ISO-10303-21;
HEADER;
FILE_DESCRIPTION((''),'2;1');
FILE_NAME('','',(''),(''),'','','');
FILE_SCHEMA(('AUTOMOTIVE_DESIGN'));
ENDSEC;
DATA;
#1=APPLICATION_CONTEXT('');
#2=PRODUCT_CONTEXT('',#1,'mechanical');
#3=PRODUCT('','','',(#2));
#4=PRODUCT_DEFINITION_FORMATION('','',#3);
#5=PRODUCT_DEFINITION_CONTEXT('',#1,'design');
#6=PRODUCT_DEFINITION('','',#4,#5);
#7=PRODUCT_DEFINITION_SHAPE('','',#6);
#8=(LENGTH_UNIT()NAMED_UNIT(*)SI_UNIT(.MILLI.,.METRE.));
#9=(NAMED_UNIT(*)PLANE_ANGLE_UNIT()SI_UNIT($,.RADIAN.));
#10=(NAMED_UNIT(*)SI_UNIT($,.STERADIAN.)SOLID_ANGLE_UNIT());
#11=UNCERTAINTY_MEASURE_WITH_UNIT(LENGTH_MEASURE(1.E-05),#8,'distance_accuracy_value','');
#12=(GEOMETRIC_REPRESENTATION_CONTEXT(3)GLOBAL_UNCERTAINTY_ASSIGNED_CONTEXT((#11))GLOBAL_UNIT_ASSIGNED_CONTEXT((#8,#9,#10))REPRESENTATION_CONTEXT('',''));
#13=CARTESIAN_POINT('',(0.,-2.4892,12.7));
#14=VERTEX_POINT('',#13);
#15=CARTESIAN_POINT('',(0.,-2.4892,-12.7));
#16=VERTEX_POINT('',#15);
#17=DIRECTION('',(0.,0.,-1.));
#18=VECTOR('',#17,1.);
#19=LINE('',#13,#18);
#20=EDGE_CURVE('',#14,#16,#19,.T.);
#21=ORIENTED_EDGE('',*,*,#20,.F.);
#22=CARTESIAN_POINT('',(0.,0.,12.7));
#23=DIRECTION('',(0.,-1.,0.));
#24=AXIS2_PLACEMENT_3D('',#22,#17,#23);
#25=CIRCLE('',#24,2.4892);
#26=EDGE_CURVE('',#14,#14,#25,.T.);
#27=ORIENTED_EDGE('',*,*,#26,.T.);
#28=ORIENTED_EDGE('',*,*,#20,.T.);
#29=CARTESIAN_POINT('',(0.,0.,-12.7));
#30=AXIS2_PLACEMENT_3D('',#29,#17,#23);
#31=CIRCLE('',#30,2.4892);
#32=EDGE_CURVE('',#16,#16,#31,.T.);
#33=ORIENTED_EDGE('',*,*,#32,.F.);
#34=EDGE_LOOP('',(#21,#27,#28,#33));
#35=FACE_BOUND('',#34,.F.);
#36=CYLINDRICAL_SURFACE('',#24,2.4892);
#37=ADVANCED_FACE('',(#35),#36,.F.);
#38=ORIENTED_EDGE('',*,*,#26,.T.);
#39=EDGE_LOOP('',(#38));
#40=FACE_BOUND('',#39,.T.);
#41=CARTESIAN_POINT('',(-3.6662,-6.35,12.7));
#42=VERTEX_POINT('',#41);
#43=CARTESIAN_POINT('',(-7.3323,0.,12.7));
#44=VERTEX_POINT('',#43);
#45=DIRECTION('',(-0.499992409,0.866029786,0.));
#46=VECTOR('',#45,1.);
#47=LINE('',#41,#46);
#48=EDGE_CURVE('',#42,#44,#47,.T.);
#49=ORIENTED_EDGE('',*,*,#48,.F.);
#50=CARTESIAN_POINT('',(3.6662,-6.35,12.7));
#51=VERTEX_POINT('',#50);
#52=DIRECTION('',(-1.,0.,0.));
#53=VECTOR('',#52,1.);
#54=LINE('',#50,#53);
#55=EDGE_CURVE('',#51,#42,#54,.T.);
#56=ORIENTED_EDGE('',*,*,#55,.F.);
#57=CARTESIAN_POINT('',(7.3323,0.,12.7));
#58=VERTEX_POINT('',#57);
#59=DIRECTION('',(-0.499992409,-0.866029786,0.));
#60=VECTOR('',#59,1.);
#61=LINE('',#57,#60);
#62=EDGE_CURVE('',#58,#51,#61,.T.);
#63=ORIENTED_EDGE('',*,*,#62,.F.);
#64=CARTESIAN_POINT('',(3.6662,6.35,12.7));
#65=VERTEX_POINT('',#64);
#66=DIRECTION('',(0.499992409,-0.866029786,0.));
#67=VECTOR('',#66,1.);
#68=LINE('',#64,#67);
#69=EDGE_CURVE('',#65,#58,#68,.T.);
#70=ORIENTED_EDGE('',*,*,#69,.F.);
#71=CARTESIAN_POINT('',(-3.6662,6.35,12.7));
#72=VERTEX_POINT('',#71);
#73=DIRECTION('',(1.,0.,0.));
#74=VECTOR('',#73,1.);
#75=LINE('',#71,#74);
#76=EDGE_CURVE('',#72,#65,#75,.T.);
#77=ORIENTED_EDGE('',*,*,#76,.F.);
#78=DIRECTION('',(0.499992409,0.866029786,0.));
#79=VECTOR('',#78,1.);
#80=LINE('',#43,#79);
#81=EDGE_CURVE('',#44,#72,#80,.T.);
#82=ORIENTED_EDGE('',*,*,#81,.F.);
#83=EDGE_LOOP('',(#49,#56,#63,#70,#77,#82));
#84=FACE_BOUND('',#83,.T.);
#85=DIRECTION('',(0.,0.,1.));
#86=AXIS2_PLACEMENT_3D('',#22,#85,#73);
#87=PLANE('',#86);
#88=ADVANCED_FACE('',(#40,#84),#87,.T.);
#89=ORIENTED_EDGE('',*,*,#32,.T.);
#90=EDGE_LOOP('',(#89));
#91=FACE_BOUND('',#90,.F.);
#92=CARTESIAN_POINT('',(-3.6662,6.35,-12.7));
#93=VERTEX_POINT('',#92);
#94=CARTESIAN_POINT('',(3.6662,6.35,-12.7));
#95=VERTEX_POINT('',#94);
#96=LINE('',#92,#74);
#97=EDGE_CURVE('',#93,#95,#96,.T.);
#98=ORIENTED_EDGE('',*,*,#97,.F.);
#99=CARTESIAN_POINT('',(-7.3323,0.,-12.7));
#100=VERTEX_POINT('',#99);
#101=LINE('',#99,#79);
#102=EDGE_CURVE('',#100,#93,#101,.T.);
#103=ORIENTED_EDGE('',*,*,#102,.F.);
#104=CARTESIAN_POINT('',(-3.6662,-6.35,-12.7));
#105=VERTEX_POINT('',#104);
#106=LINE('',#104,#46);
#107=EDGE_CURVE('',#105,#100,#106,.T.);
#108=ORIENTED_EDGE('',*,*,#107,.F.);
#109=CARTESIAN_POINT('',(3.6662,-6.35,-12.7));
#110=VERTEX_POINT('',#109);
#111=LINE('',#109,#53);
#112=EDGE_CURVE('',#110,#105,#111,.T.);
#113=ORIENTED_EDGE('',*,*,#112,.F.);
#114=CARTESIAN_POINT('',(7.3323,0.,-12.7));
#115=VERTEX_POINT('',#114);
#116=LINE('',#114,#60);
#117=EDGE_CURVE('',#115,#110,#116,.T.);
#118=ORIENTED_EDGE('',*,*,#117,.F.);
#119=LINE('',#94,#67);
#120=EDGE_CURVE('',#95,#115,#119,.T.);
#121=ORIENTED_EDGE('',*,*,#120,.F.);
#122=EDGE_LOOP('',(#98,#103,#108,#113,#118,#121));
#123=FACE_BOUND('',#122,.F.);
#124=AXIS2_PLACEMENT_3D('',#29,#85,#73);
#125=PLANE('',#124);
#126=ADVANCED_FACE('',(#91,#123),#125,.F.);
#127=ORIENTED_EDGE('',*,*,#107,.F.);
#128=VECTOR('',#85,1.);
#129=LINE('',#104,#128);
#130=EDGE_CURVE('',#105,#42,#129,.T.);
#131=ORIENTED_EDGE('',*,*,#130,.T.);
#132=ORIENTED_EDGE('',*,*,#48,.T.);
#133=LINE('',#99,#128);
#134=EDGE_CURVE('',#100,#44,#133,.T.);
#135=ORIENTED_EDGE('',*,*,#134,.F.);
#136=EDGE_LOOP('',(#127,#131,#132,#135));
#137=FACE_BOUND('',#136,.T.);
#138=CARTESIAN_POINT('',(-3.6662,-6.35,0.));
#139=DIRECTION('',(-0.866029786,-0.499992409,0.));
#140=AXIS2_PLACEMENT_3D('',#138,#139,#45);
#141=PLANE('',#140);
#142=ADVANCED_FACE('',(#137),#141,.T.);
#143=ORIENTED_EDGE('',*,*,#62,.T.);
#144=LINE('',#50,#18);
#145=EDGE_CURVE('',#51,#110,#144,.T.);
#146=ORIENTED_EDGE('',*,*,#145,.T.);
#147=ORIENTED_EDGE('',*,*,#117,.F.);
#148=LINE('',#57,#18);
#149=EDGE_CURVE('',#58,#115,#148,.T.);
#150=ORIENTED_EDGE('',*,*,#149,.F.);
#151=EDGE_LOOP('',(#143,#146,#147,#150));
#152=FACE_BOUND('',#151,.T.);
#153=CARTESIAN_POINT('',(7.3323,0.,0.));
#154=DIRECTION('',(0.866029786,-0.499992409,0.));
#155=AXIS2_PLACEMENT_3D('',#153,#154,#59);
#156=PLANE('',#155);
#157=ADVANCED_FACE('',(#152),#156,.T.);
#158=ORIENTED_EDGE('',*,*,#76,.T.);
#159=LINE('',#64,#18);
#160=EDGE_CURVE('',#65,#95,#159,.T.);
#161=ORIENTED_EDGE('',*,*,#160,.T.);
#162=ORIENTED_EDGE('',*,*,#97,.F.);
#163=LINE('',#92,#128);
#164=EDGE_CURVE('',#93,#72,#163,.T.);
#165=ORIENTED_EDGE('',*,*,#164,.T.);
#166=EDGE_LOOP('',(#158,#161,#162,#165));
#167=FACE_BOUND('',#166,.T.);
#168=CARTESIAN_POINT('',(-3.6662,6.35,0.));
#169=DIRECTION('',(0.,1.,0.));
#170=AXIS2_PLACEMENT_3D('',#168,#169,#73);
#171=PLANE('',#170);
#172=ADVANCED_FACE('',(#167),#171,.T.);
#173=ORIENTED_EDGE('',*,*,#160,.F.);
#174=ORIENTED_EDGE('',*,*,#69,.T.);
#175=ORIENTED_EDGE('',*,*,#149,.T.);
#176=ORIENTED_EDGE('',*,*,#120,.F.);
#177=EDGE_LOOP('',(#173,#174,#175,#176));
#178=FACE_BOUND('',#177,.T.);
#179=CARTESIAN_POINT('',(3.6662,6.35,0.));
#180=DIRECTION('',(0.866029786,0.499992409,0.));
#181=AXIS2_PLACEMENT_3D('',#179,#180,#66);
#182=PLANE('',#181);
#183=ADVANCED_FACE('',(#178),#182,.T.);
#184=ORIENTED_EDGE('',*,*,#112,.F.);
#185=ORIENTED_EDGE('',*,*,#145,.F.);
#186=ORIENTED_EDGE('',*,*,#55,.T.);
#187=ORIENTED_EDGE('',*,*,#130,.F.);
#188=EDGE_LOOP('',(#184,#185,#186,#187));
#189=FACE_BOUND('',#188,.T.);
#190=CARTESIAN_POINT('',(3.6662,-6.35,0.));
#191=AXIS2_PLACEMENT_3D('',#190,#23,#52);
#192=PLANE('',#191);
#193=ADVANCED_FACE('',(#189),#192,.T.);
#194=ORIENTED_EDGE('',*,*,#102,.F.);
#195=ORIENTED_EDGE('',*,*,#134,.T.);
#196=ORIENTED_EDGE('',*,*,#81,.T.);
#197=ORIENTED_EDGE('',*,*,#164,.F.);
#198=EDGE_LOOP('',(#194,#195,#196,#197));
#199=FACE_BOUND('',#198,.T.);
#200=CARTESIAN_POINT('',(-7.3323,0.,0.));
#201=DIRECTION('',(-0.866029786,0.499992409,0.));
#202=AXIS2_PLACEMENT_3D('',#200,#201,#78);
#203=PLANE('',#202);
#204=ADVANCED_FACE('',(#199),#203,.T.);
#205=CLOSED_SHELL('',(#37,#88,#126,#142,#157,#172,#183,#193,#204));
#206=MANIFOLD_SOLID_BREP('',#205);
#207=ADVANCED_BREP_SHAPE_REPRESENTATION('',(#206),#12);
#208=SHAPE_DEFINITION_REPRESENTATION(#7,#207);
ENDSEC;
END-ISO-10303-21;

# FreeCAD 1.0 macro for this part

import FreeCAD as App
import Part
import Sketcher
Q = App.Units.Quantity

doc = App.newDocument("Part")
params = doc.addObject("Spreadsheet::Sheet", "Params")
for row, (alias, value) in enumerate([
    ("pad1_length", "1 in"),
    ("sketch2_diameter", "0.196 in"),
    ("hole_diameter", "0.196 in"),
], start=1):
    params.set(f"A{row}", alias)
    params.set(f"B{row}", "=" + value)
    params.setAlias(f"B{row}", alias)

body = doc.addObject("PartDesign::Body", "Body")

sketch1 = body.newObject("Sketcher::SketchObject", "Sketch")
sketch1.AttachmentSupport = (doc.getObject("XY_Plane"), [""])
sketch1.MapMode = "FlatFace"
sketch1.addGeometry([
    Part.LineSegment(App.Vector(4, 6, 0), App.Vector(-4, 6, 0)),
    Part.LineSegment(App.Vector(-4, 6, 0), App.Vector(-7, 0, 0)),
    Part.LineSegment(App.Vector(-7, 0, 0), App.Vector(-4, -6, 0)),
    Part.LineSegment(App.Vector(-4, -6, 0), App.Vector(4, -6, 0)),
    Part.LineSegment(App.Vector(4, -6, 0), App.Vector(7, 0, 0)),
    Part.LineSegment(App.Vector(7, 0, 0), App.Vector(4, 6, 0)),
], False)
sketch1.addConstraint([
    Sketcher.Constraint("Coincident", 0, 2, 1, 1),
    Sketcher.Constraint("Coincident", 1, 2, 2, 1),
    Sketcher.Constraint("Coincident", 2, 2, 3, 1),
    Sketcher.Constraint("Coincident", 3, 2, 4, 1),
    Sketcher.Constraint("Coincident", 4, 2, 5, 1),
    Sketcher.Constraint("Coincident", 5, 2, 0, 1),
    Sketcher.Constraint("Horizontal", 0),
    Sketcher.Constraint("Horizontal", 3),
    Sketcher.Constraint("Symmetric", 0, 2, 3, 2, -1, 1),
    Sketcher.Constraint("Symmetric", 1, 2, 4, 2, -1, 1),
    Sketcher.Constraint("PointOnObject", 1, 2, -1),
    Sketcher.Constraint("Parallel", 2, 5),
    Sketcher.Constraint("Vertical", 0, 2, 2, 2),
    Sketcher.Constraint("DistanceY", 2, 2, 0, 2, Q("0.5 in")),
    Sketcher.Constraint("Angle", 1, Q("-119.9995 deg")),
    Sketcher.Constraint("DistanceX", 1, 2, 3, 2, Q("0.433 in")),
])
pad1 = body.newObject("PartDesign::Pad", "Pad")
pad1.Profile = sketch1
pad1.setExpression("Length", "Params.pad1_length")
pad1.Midplane = True

sketch2 = body.newObject("Sketcher::SketchObject", "Sketch001")
sketch2.AttachmentSupport = (doc.getObject("XY_Plane"), [""])
sketch2.MapMode = "FlatFace"
sketch2.AttachmentOffset = App.Placement(App.Vector(0, 0, 0.5 * 25.4), App.Rotation())
sketch2.addGeometry(Part.Circle(App.Vector(0, 0, 0), App.Vector(0, 0, 1), 2.5), False)
sketch2.addConstraint([
    Sketcher.Constraint("Coincident", 0, 3, -1, 1),
    Sketcher.Constraint("Diameter", 0, Q("0.196 in")),
])
sketch2.setExpression("Constraints[1]", "Params.sketch2_diameter")
doc.recompute()
hole = body.newObject("PartDesign::Hole", "Hole")
hole.Profile = sketch2
hole.ThreadType = "None"
hole.setExpression("Diameter", "Params.hole_diameter")
hole.DepthType = "ThroughAll"

doc.recompute()
